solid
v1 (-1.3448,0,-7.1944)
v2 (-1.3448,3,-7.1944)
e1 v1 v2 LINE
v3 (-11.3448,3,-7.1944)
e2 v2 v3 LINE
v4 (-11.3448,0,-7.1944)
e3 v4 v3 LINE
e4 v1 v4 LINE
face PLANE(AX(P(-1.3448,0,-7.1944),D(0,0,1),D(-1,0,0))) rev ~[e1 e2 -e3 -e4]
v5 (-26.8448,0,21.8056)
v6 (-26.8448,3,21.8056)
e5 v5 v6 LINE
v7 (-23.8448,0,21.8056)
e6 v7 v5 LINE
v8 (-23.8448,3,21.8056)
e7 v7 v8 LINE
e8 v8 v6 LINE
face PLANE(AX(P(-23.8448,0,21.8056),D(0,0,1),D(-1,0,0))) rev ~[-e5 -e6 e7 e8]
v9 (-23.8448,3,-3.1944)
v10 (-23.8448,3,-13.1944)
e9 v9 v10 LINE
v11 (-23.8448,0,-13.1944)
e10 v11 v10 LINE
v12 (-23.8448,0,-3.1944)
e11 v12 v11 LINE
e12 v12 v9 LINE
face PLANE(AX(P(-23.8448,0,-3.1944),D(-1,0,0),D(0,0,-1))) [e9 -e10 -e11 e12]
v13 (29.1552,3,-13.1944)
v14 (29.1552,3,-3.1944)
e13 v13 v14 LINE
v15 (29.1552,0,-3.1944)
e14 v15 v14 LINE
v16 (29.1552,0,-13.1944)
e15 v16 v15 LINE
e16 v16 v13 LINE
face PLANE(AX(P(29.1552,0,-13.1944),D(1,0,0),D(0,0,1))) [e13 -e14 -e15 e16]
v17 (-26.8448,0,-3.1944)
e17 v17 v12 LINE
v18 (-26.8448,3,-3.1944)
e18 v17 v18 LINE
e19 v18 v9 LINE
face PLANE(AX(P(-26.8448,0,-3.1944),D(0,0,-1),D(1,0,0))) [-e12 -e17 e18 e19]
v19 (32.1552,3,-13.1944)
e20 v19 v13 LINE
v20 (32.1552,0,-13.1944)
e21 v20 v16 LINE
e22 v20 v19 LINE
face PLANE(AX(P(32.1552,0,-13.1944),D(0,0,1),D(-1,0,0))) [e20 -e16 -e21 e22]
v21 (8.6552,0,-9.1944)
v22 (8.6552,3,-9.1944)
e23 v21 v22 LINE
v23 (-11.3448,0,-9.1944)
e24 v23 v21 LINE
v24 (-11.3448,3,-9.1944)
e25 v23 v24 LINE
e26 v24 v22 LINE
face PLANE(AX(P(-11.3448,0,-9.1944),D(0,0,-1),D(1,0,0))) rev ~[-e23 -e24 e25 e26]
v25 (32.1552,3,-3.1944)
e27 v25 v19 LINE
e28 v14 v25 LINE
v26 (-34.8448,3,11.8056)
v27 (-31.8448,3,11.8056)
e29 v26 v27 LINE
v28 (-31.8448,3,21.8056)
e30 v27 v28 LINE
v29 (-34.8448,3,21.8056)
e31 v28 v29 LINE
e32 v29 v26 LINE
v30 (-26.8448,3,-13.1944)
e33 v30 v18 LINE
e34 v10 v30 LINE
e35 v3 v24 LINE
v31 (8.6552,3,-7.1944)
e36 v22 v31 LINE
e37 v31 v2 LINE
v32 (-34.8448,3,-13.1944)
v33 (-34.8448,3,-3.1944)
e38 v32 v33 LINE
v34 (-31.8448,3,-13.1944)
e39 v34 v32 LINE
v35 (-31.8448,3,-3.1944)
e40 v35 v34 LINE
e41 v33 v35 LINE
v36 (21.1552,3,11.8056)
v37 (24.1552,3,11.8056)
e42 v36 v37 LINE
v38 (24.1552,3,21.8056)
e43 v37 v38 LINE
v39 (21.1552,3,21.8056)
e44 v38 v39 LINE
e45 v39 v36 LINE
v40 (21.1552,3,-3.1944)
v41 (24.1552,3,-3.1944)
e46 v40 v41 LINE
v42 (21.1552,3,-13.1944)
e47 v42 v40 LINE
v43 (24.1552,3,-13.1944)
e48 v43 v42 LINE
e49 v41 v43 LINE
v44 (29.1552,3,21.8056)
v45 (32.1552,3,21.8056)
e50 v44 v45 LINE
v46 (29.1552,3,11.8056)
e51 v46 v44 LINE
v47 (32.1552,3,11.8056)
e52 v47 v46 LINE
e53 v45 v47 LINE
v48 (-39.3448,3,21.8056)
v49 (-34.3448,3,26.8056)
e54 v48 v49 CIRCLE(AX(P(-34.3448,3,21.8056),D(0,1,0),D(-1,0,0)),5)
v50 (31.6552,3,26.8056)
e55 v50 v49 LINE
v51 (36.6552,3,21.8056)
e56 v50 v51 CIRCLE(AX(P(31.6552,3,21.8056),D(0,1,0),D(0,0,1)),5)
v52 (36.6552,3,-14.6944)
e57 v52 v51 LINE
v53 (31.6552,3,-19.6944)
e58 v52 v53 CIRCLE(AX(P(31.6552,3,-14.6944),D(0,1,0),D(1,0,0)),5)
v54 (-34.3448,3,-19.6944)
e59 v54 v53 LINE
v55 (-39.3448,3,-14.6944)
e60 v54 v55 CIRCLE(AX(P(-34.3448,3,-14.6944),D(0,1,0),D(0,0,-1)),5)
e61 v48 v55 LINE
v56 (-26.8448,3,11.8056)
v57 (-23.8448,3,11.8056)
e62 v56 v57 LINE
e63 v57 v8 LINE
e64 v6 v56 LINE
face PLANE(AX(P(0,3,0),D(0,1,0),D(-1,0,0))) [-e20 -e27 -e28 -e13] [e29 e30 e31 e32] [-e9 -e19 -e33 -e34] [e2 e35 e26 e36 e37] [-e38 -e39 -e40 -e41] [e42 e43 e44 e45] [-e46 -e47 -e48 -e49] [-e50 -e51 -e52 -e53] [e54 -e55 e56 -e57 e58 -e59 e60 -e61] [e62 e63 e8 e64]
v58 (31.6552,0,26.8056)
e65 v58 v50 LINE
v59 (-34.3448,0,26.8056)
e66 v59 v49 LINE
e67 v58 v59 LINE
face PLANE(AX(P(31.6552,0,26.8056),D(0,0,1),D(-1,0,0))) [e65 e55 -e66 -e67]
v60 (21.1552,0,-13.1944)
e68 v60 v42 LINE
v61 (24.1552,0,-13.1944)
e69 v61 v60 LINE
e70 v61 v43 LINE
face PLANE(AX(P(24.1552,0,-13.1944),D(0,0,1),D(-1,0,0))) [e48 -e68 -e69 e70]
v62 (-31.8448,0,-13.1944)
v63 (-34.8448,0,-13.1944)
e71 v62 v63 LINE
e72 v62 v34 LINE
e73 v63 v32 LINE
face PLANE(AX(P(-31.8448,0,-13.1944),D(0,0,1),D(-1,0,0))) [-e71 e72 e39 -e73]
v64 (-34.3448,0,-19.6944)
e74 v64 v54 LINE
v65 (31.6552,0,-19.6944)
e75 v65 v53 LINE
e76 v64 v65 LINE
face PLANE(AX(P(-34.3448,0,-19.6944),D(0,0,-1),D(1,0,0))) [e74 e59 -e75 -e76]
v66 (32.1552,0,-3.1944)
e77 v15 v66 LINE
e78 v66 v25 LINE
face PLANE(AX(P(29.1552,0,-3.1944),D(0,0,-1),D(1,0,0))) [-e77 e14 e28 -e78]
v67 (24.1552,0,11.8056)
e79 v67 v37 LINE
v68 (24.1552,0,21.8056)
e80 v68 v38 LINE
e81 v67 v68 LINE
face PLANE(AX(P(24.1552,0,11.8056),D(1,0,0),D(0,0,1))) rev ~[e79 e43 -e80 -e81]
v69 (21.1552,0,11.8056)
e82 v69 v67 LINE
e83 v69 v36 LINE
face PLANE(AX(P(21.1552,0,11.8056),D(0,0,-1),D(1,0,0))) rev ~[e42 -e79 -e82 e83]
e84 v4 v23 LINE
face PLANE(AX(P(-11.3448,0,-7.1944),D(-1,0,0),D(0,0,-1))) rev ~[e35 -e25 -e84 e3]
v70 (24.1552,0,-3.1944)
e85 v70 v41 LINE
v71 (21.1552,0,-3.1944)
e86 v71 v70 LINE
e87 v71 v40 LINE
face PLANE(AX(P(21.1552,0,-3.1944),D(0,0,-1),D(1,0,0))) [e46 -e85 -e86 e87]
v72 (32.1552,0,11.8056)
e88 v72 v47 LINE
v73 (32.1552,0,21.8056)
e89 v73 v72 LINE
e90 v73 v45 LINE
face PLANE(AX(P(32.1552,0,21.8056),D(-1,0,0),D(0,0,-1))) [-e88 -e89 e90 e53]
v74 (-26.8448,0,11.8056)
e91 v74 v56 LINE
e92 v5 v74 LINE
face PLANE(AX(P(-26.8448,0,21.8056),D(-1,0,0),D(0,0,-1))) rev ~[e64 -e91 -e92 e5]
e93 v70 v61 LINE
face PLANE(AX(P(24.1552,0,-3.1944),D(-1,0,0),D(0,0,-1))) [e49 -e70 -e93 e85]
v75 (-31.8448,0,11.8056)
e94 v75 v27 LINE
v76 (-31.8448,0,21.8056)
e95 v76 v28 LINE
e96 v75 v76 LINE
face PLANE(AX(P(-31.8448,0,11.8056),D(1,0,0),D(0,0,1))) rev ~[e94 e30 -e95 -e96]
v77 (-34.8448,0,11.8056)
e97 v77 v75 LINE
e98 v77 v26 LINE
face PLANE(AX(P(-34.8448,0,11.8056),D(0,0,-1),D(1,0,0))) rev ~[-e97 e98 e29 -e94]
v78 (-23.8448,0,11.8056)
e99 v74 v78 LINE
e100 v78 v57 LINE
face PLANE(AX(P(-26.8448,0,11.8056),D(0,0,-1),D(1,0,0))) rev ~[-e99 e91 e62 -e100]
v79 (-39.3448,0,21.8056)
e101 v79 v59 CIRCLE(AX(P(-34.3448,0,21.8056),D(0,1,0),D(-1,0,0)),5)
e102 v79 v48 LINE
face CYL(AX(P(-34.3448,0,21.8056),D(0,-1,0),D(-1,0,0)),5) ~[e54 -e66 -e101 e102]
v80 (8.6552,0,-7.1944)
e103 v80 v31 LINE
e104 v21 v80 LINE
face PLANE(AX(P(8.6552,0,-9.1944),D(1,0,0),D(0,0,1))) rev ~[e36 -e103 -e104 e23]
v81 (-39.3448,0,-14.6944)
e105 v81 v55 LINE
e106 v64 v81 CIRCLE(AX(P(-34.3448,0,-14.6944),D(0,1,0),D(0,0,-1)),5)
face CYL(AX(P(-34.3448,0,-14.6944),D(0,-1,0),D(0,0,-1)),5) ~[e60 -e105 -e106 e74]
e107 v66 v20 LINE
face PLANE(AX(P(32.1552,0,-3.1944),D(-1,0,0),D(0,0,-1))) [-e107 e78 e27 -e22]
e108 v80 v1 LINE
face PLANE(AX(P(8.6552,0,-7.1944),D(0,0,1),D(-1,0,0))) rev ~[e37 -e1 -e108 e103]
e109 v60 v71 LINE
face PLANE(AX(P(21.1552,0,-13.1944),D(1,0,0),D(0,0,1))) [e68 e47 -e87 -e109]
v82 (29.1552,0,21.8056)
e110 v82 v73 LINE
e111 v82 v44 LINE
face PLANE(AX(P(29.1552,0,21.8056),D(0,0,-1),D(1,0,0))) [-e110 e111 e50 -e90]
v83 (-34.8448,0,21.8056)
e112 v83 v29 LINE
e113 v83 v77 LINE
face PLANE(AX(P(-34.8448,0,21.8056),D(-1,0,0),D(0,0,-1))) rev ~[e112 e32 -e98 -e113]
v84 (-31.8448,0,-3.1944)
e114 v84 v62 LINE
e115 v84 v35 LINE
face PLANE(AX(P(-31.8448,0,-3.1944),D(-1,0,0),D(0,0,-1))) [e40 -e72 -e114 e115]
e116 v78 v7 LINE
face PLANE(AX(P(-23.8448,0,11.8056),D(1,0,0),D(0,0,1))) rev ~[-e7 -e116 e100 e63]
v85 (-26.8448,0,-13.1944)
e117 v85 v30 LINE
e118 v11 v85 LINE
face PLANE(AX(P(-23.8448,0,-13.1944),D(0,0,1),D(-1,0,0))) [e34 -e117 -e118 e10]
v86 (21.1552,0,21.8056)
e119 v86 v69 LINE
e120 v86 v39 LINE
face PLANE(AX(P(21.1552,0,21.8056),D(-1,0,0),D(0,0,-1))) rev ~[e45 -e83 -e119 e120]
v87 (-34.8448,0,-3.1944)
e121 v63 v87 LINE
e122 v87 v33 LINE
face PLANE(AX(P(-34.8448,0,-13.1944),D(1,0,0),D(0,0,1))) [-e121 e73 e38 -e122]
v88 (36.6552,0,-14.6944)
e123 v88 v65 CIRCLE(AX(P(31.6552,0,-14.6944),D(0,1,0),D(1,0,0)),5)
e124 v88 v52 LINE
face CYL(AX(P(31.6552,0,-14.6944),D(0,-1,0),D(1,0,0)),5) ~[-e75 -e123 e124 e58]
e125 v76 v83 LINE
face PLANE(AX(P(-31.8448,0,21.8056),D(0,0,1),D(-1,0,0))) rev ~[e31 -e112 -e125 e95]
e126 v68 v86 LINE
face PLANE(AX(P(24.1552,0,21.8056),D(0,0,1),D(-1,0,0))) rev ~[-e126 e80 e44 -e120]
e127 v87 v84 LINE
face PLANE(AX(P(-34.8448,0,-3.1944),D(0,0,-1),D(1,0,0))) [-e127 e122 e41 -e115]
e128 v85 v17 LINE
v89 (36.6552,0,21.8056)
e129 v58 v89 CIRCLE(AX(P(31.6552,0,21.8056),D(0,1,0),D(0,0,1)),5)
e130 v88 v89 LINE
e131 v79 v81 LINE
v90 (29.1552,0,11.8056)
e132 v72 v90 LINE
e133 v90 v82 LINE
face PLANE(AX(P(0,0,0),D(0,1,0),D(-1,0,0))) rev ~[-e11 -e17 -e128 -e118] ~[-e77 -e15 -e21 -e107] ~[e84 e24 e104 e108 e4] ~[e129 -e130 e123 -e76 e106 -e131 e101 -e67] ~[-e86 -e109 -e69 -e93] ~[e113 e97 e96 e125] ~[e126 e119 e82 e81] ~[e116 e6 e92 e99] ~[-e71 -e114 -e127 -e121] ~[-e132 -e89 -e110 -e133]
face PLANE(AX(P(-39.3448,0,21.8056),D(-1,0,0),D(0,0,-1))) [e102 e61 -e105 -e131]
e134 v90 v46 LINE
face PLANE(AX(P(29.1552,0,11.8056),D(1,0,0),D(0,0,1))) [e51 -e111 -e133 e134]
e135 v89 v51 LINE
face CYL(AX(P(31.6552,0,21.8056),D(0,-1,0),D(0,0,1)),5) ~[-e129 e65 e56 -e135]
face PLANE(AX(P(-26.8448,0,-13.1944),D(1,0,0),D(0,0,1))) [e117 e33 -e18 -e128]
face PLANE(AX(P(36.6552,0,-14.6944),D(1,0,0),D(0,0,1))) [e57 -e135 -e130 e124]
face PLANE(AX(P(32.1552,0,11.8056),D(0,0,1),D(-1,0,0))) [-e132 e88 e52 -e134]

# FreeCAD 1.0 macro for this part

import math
import FreeCAD as App
import Part
import Sketcher
from FreeCAD import Vector

doc = App.newDocument("Part")
body = doc.addObject("PartDesign::Body", "Body")

# Sketch on XZ plane
sketch1 = body.newObject("Sketcher::SketchObject", "Sketch")
sketch1.AttachmentSupport = (doc.getObject("XZ_Plane"), [""])
sketch1.MapMode = "FlatFace"
sketch1.addGeometry([
    Part.LineSegment(Vector(31.6552, -19.6944, 0), Vector(-34.3448, -19.6944, 0)),  # 0
    Part.ArcOfCircle(Part.Circle(Vector(-34.3448, -14.6944, 0), Vector(0, 0, 1), 5), math.radians(180), math.radians(270)),  # 1
    Part.LineSegment(Vector(-39.3448, -14.6944, 0), Vector(-39.3448, 21.8056, 0)),  # 2
    Part.ArcOfCircle(Part.Circle(Vector(-34.3448, 21.8056, 0), Vector(0, 0, 1), 5), math.radians(90), math.radians(180)),  # 3
    Part.LineSegment(Vector(-34.3448, 26.8056, 0), Vector(31.6552, 26.8056, 0)),  # 4
    Part.ArcOfCircle(Part.Circle(Vector(31.6552, 21.8056, 0), Vector(0, 0, 1), 5), math.radians(0), math.radians(90)),  # 5
    Part.LineSegment(Vector(36.6552, 21.8056, 0), Vector(36.6552, -14.6944, 0)),  # 6
    Part.ArcOfCircle(Part.Circle(Vector(31.6552, -14.6944, 0), Vector(0, 0, 1), 5), math.radians(-90), math.radians(0)),  # 7
    Part.LineSegment(Vector(29.1552, -3.1944, 0), Vector(29.1552, -13.1944, 0)),  # 8
    Part.LineSegment(Vector(29.1552, -13.1944, 0), Vector(32.1552, -13.1944, 0)),  # 9
    Part.LineSegment(Vector(32.1552, -13.1944, 0), Vector(32.1552, -3.1944, 0)),  # 10
    Part.LineSegment(Vector(32.1552, -3.1944, 0), Vector(29.1552, -3.1944, 0)),  # 11
    Part.LineSegment(Vector(21.1552, -3.1944, 0), Vector(21.1552, -13.1944, 0)),  # 12
    Part.LineSegment(Vector(21.1552, -13.1944, 0), Vector(24.1552, -13.1944, 0)),  # 13
    Part.LineSegment(Vector(24.1552, -13.1944, 0), Vector(24.1552, -3.1944, 0)),  # 14
    Part.LineSegment(Vector(24.1552, -3.1944, 0), Vector(21.1552, -3.1944, 0)),  # 15
    Part.LineSegment(Vector(8.6552, -7.1944, 0), Vector(-11.3448, -7.1944, 0)),  # 16
    Part.LineSegment(Vector(-11.3448, -7.1944, 0), Vector(-11.3448, -9.1944, 0)),  # 17
    Part.LineSegment(Vector(-11.3448, -9.1944, 0), Vector(8.6552, -9.1944, 0)),  # 18
    Part.LineSegment(Vector(8.6552, -9.1944, 0), Vector(8.6552, -7.1944, 0)),  # 19
    Part.LineSegment(Vector(-26.8448, -3.1944, 0), Vector(-26.8448, -13.1944, 0)),  # 20
    Part.LineSegment(Vector(-26.8448, -13.1944, 0), Vector(-23.8448, -13.1944, 0)),  # 21
    Part.LineSegment(Vector(-23.8448, -13.1944, 0), Vector(-23.8448, -3.1944, 0)),  # 22
    Part.LineSegment(Vector(-23.8448, -3.1944, 0), Vector(-26.8448, -3.1944, 0)),  # 23
    Part.LineSegment(Vector(-34.8448, -3.1944, 0), Vector(-34.8448, -13.1944, 0)),  # 24
    Part.LineSegment(Vector(-34.8448, -13.1944, 0), Vector(-31.8448, -13.1944, 0)),  # 25
    Part.LineSegment(Vector(-31.8448, -13.1944, 0), Vector(-31.8448, -3.1944, 0)),  # 26
    Part.LineSegment(Vector(-31.8448, -3.1944, 0), Vector(-34.8448, -3.1944, 0)),  # 27
    Part.LineSegment(Vector(29.1552, 21.8056, 0), Vector(29.1552, 11.8056, 0)),  # 28
    Part.LineSegment(Vector(29.1552, 11.8056, 0), Vector(32.1552, 11.8056, 0)),  # 29
    Part.LineSegment(Vector(32.1552, 11.8056, 0), Vector(32.1552, 21.8056, 0)),  # 30
    Part.LineSegment(Vector(32.1552, 21.8056, 0), Vector(29.1552, 21.8056, 0)),  # 31
    Part.LineSegment(Vector(21.1552, 21.8056, 0), Vector(21.1552, 11.8056, 0)),  # 32
    Part.LineSegment(Vector(21.1552, 11.8056, 0), Vector(24.1552, 11.8056, 0)),  # 33
    Part.LineSegment(Vector(24.1552, 11.8056, 0), Vector(24.1552, 21.8056, 0)),  # 34
    Part.LineSegment(Vector(24.1552, 21.8056, 0), Vector(21.1552, 21.8056, 0)),  # 35
    Part.LineSegment(Vector(-26.8448, 21.8056, 0), Vector(-26.8448, 11.8056, 0)),  # 36
    Part.LineSegment(Vector(-26.8448, 11.8056, 0), Vector(-23.8448, 11.8056, 0)),  # 37
    Part.LineSegment(Vector(-23.8448, 11.8056, 0), Vector(-23.8448, 21.8056, 0)),  # 38
    Part.LineSegment(Vector(-23.8448, 21.8056, 0), Vector(-26.8448, 21.8056, 0)),  # 39
    Part.LineSegment(Vector(-34.8448, 21.8056, 0), Vector(-34.8448, 11.8056, 0)),  # 40
    Part.LineSegment(Vector(-34.8448, 11.8056, 0), Vector(-31.8448, 11.8056, 0)),  # 41
    Part.LineSegment(Vector(-31.8448, 11.8056, 0), Vector(-31.8448, 21.8056, 0)),  # 42
    Part.LineSegment(Vector(-31.8448, 21.8056, 0), Vector(-34.8448, 21.8056, 0)),  # 43
], False)
sketch1.addConstraint([
    Sketcher.Constraint("Tangent", 0, 2, 1, 2),
    Sketcher.Constraint("Tangent", 1, 1, 2, 1),
    Sketcher.Constraint("Tangent", 2, 2, 3, 2),
    Sketcher.Constraint("Tangent", 3, 1, 4, 1),
    Sketcher.Constraint("Tangent", 4, 2, 5, 2),
    Sketcher.Constraint("Tangent", 5, 1, 6, 1),
    Sketcher.Constraint("Tangent", 6, 2, 7, 2),
    Sketcher.Constraint("Tangent", 7, 1, 0, 1),
    Sketcher.Constraint("Coincident", 8, 2, 9, 1),
    Sketcher.Constraint("Coincident", 9, 2, 10, 1),
    Sketcher.Constraint("Coincident", 10, 2, 11, 1),
    Sketcher.Constraint("Coincident", 11, 2, 8, 1),
    Sketcher.Constraint("Coincident", 12, 2, 13, 1),
    Sketcher.Constraint("Coincident", 13, 2, 14, 1),
    Sketcher.Constraint("Coincident", 14, 2, 15, 1),
    Sketcher.Constraint("Coincident", 15, 2, 12, 1),
    Sketcher.Constraint("Coincident", 16, 2, 17, 1),
    Sketcher.Constraint("Coincident", 17, 2, 18, 1),
    Sketcher.Constraint("Coincident", 18, 2, 19, 1),
    Sketcher.Constraint("Coincident", 19, 2, 16, 1),
    Sketcher.Constraint("Coincident", 20, 2, 21, 1),
    Sketcher.Constraint("Coincident", 21, 2, 22, 1),
    Sketcher.Constraint("Coincident", 22, 2, 23, 1),
    Sketcher.Constraint("Coincident", 23, 2, 20, 1),
    Sketcher.Constraint("Coincident", 24, 2, 25, 1),
    Sketcher.Constraint("Coincident", 25, 2, 26, 1),
    Sketcher.Constraint("Coincident", 26, 2, 27, 1),
    Sketcher.Constraint("Coincident", 27, 2, 24, 1),
    Sketcher.Constraint("Coincident", 28, 2, 29, 1),
    Sketcher.Constraint("Coincident", 29, 2, 30, 1),
    Sketcher.Constraint("Coincident", 30, 2, 31, 1),
    Sketcher.Constraint("Coincident", 31, 2, 28, 1),
    Sketcher.Constraint("Coincident", 32, 2, 33, 1),
    Sketcher.Constraint("Coincident", 33, 2, 34, 1),
    Sketcher.Constraint("Coincident", 34, 2, 35, 1),
    Sketcher.Constraint("Coincident", 35, 2, 32, 1),
    Sketcher.Constraint("Coincident", 36, 2, 37, 1),
    Sketcher.Constraint("Coincident", 37, 2, 38, 1),
    Sketcher.Constraint("Coincident", 38, 2, 39, 1),
    Sketcher.Constraint("Coincident", 39, 2, 36, 1),
    Sketcher.Constraint("Coincident", 40, 2, 41, 1),
    Sketcher.Constraint("Coincident", 41, 2, 42, 1),
    Sketcher.Constraint("Coincident", 42, 2, 43, 1),
    Sketcher.Constraint("Coincident", 43, 2, 40, 1),
    Sketcher.Constraint("Horizontal", 0),
    Sketcher.Constraint("Vertical", 2),
    Sketcher.Constraint("Horizontal", 4),
    Sketcher.Constraint("Vertical", 6),
    Sketcher.Constraint("Vertical", 8),
    Sketcher.Constraint("Horizontal", 9),
    Sketcher.Constraint("Vertical", 10),
    Sketcher.Constraint("Horizontal", 11),
    Sketcher.Constraint("Vertical", 12),
    Sketcher.Constraint("Horizontal", 13),
    Sketcher.Constraint("Vertical", 14),
    Sketcher.Constraint("Horizontal", 15),
    Sketcher.Constraint("Horizontal", 16),
    Sketcher.Constraint("Vertical", 17),
    Sketcher.Constraint("Horizontal", 18),
    Sketcher.Constraint("Vertical", 19),
    Sketcher.Constraint("Vertical", 20),
    Sketcher.Constraint("Horizontal", 21),
    Sketcher.Constraint("Vertical", 22),
    Sketcher.Constraint("Horizontal", 23),
    Sketcher.Constraint("Vertical", 24),
    Sketcher.Constraint("Horizontal", 25),
    Sketcher.Constraint("Vertical", 26),
    Sketcher.Constraint("Horizontal", 27),
    Sketcher.Constraint("Vertical", 28),
    Sketcher.Constraint("Horizontal", 29),
    Sketcher.Constraint("Vertical", 30),
    Sketcher.Constraint("Horizontal", 31),
    Sketcher.Constraint("Vertical", 32),
    Sketcher.Constraint("Horizontal", 33),
    Sketcher.Constraint("Vertical", 34),
    Sketcher.Constraint("Horizontal", 35),
    Sketcher.Constraint("Vertical", 36),
    Sketcher.Constraint("Horizontal", 37),
    Sketcher.Constraint("Vertical", 38),
    Sketcher.Constraint("Horizontal", 39),
    Sketcher.Constraint("Vertical", 40),
    Sketcher.Constraint("Horizontal", 41),
    Sketcher.Constraint("Vertical", 42),
    Sketcher.Constraint("Horizontal", 43),
    Sketcher.Constraint("Equal", 1, 3),
    Sketcher.Constraint("Equal", 3, 5),
    Sketcher.Constraint("Equal", 5, 7),
    Sketcher.Constraint("Horizontal", 9, 2, 12, 2),
    Sketcher.Constraint("Horizontal", 11, 2, 14, 2),
    Sketcher.Constraint("Horizontal", 13, 2, 20, 2),
    Sketcher.Constraint("Horizontal", 15, 2, 22, 2),
    Sketcher.Constraint("Horizontal", 21, 2, 24, 2),
    Sketcher.Constraint("Horizontal", 23, 2, 26, 2),
    Sketcher.Constraint("Horizontal", 5, 1, 30, 2),
    Sketcher.Constraint("Horizontal", 29, 2, 32, 2),
    Sketcher.Constraint("Horizontal", 31, 2, 34, 2),
    Sketcher.Constraint("Horizontal", 33, 2, 36, 2),
    Sketcher.Constraint("Horizontal", 35, 2, 38, 2),
    Sketcher.Constraint("Horizontal", 37, 2, 40, 2),
    Sketcher.Constraint("Horizontal", 39, 2, 42, 2),
    Sketcher.Constraint("Vertical", 11, 2, 28, 2),
    Sketcher.Constraint("Vertical", 10, 2, 29, 2),
    Sketcher.Constraint("Vertical", 15, 2, 32, 2),
    Sketcher.Constraint("Vertical", 14, 2, 33, 2),
    Sketcher.Constraint("Vertical", 23, 2, 36, 2),
    Sketcher.Constraint("Vertical", 22, 2, 37, 2),
    Sketcher.Constraint("Vertical", 27, 2, 40, 2),
    Sketcher.Constraint("Vertical", 26, 2, 41, 2),
    Sketcher.Constraint("Equal", 11, 13),
    Sketcher.Constraint("Equal", 15, 21),
    Sketcher.Constraint("Equal", 23, 25),
    Sketcher.Constraint("Equal", 26, 28),
    Sketcher.Constraint("Radius", 1, 5.0),
    Sketcher.Constraint("DistanceX", 0, 2, 0, 1, 66.0),
    Sketcher.Constraint("DistanceX", 9, 1, 9, 2, 3.0),
    Sketcher.Constraint("DistanceX", 16, 2, 16, 1, 20.0),
    Sketcher.Constraint("DistanceY", 8, 2, 8, 1, 10.0),
    Sketcher.Constraint("DistanceY", 17, 2, 17, 1, 2.0),
    Sketcher.Constraint("DistanceY", 2, 1, 2, 2, 36.5),
    Sketcher.Constraint("DistanceY", 8, 2, 5, 3, 35.0),
    Sketcher.Constraint("DistanceX", 12, 2, 8, 2, 8.0),
    Sketcher.Constraint("DistanceX", 1, 3, 16, 2, 23.0),
    Sketcher.Constraint("DistanceY", 16, 2, 15, 2, 4.0),
    Sketcher.Constraint("DistanceX", 24, 2, 20, 2, 8.0),
    Sketcher.Constraint("DistanceX", 8, 2, 7, 3, 2.5),
    Sketcher.Constraint("DistanceX", 1, 3, 20, 2, 7.5),
    Sketcher.Constraint("DistanceX", 1, 3, -1, 1, 34.3448),
    Sketcher.Constraint("DistanceY", 1, 3, -1, 1, 14.6944),
])
pad1 = body.newObject("PartDesign::Pad", "Pad")
pad1.Profile = sketch1
pad1.Length = 3
pad1.Reversed = True

doc.recompute()
